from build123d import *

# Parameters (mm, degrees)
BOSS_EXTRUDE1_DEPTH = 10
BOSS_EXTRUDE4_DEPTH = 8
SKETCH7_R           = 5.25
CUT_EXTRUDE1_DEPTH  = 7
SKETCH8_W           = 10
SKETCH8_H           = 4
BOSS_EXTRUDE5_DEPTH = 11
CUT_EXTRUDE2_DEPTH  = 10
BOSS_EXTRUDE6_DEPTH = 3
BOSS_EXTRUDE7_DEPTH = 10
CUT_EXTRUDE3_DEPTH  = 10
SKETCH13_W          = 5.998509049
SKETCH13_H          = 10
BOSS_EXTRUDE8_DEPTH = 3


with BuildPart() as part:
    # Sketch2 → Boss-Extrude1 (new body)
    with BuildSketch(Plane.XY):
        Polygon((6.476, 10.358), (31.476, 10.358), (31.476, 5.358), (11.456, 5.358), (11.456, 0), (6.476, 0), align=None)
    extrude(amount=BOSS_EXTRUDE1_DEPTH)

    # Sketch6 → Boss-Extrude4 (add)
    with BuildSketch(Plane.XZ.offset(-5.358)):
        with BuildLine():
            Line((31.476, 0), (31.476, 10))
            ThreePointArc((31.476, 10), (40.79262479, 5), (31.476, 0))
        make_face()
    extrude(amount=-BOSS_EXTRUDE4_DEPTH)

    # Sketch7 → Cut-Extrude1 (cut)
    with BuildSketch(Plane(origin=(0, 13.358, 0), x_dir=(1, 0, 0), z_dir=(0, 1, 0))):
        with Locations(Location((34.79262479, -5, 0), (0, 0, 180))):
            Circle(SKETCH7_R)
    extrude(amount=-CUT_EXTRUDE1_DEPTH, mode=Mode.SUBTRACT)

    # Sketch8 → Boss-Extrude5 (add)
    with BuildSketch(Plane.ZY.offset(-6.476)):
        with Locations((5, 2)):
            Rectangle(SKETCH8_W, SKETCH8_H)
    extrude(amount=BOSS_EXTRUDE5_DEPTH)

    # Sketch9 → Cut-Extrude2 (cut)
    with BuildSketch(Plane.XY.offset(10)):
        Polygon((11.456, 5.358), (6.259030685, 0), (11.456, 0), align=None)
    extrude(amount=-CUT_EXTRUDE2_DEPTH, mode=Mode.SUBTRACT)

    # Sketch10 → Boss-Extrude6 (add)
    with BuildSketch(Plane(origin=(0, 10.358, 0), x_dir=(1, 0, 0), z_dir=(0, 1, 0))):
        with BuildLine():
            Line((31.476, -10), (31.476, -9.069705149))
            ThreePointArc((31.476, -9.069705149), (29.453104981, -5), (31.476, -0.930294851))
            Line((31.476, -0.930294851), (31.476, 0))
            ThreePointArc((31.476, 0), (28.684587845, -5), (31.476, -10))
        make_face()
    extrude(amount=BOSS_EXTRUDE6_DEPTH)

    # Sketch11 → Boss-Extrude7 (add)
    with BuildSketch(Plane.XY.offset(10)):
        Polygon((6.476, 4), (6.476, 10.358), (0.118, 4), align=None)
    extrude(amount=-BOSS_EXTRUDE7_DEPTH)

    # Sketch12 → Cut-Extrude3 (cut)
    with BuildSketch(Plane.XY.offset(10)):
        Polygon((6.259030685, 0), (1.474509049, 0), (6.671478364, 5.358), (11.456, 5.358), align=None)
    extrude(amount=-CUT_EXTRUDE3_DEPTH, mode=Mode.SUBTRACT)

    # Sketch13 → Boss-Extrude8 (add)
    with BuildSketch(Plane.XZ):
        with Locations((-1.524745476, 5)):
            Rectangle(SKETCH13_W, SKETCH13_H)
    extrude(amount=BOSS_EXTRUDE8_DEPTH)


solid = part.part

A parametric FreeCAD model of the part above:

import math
import FreeCAD as App
import Part
import Sketcher

doc = App.newDocument("Part")
params = doc.addObject("Spreadsheet::Sheet", "Params")
for row, (alias, value) in enumerate([
    ("sketch1_width", "25 mm"),
    ("sketch1_height", "5 mm"),
    ("sketch1_width2", "4.98 mm"),
    ("pad1_length", "10 mm"),
    ("sketch2_radius", "6 mm"),
    ("sketch2_height", "10 mm"),
    ("pad2_length", "8 mm"),
    ("sketch3_diameter", "10.5 mm"),
    ("pocket1_length", "7 mm"),
    ("sketch4_width", "4 mm"),
    ("sketch4_height", "10 mm"),
    ("pad3_length", "11 mm"),
    ("pocket2_length", "10 mm"),
    ("pad4_length", "3 mm"),
    ("pad5_length", "10 mm"),
    ("pocket3_length", "10 mm"),
    ("sketch9_height", "10 mm"),
    ("pad6_length", "3 mm"),
], start=1):
    params.set(f"A{row}", alias)
    params.set(f"B{row}", "=" + value)
    params.setAlias(f"B{row}", alias)

body = doc.addObject("PartDesign::Body", "Body")

# Sketch on XY plane
sketch1 = body.newObject("Sketcher::SketchObject", "Sketch")
sketch1.AttachmentSupport = (doc.getObject("XY_Plane"), [""])
sketch1.MapMode = "FlatFace"
sketch1.addGeometry(Part.LineSegment(App.Vector(31.5, 10.4, 0), App.Vector(6.5, 10.4, 0)), False)
sketch1.addGeometry(Part.LineSegment(App.Vector(6.5, 10.4, 0), App.Vector(6.5, 0, 0)), False)
sketch1.addGeometry(Part.LineSegment(App.Vector(6.5, 0, 0), App.Vector(11.5, 0, 0)), False)
sketch1.addGeometry(Part.LineSegment(App.Vector(11.5, 0, 0), App.Vector(11.5, 5.4, 0)), False)
sketch1.addGeometry(Part.LineSegment(App.Vector(11.5, 5.4, 0), App.Vector(31.5, 5.4, 0)), False)
sketch1.addGeometry(Part.LineSegment(App.Vector(31.5, 5.4, 0), App.Vector(31.5, 10.4, 0)), False)
sketch1.addConstraint(Sketcher.Constraint("Coincident", 0, 2, 1, 1))
sketch1.addConstraint(Sketcher.Constraint("Coincident", 1, 2, 2, 1))
sketch1.addConstraint(Sketcher.Constraint("Coincident", 2, 2, 3, 1))
sketch1.addConstraint(Sketcher.Constraint("Coincident", 3, 2, 4, 1))
sketch1.addConstraint(Sketcher.Constraint("Coincident", 4, 2, 5, 1))
sketch1.addConstraint(Sketcher.Constraint("Coincident", 5, 2, 0, 1))
sketch1.addConstraint(Sketcher.Constraint("Horizontal", 0))
sketch1.addConstraint(Sketcher.Constraint("Vertical", 1))
sketch1.addConstraint(Sketcher.Constraint("Horizontal", 2))
sketch1.addConstraint(Sketcher.Constraint("Vertical", 3))
sketch1.addConstraint(Sketcher.Constraint("Horizontal", 4))
sketch1.addConstraint(Sketcher.Constraint("Vertical", 5))
sketch1.addConstraint(Sketcher.Constraint("PointOnObject", 1, 2, -1))
sketch1.addConstraint(Sketcher.Constraint("DistanceX", 0, 2, 0, 1, 25.0))
sketch1.addConstraint(Sketcher.Constraint("DistanceY", 5, 1, 5, 2, 5.0))
sketch1.addConstraint(Sketcher.Constraint("DistanceX", 2, 1, 2, 2, 4.98))
sketch1.addConstraint(Sketcher.Constraint("DistanceY", 1, 2, 1, 1, 10.358))
sketch1.addConstraint(Sketcher.Constraint("DistanceX", -1, 1, 0, 2, 6.476))
sketch1.setExpression("Constraints[13]", "Params.sketch1_width")
sketch1.setExpression("Constraints[14]", "Params.sketch1_height")
sketch1.setExpression("Constraints[15]", "Params.sketch1_width2")
pad1 = body.newObject("PartDesign::Pad", "Pad")
pad1.Profile = sketch1
pad1.setExpression("Length", "Params.pad1_length")

# Sketch on XZ plane
sketch2 = body.newObject("Sketcher::SketchObject", "Sketch001")
sketch2.AttachmentSupport = (doc.getObject("XZ_Plane"), [""])
sketch2.MapMode = "FlatFace"
sketch2.AttachmentOffset = App.Placement(App.Vector(0, 0, -5.358), App.Rotation())
sketch2.addGeometry(Part.LineSegment(App.Vector(31, 10, 0), App.Vector(31, 0, 0)), False)
sketch2.addGeometry(Part.ArcOfCircle(Part.Circle(App.Vector(35, 5, 0), App.Vector(0, 0, 1), 6), math.radians(-124), math.radians(124)), False)
sketch2.addConstraint(Sketcher.Constraint("Coincident", 0, 1, 1, 2))
sketch2.addConstraint(Sketcher.Constraint("Coincident", 1, 1, 0, 2))
sketch2.addConstraint(Sketcher.Constraint("Vertical", 0))
sketch2.addConstraint(Sketcher.Constraint("PointOnObject", 1, 1, -1))
sketch2.addConstraint(Sketcher.Constraint("Radius", 1, 6.0))
sketch2.addConstraint(Sketcher.Constraint("DistanceY", 0, 2, 0, 1, 10.0))
sketch2.addConstraint(Sketcher.Constraint("DistanceX", -1, 1, 0, 1, 31.476))
sketch2.setExpression("Constraints[4]", "Params.sketch2_radius")
sketch2.setExpression("Constraints[5]", "Params.sketch2_height")
pad2 = body.newObject("PartDesign::Pad", "Pad001")
pad2.Profile = sketch2
pad2.setExpression("Length", "Params.pad2_length")
pad2.Reversed = True

# Sketch on XZ plane
sketch3 = body.newObject("Sketcher::SketchObject", "Sketch002")
sketch3.AttachmentSupport = (doc.getObject("XZ_Plane"), [""])
sketch3.MapMode = "FlatFace"
sketch3.AttachmentOffset = App.Placement(App.Vector(0, 0, -13.358), App.Rotation())
sketch3.addGeometry(Part.Circle(App.Vector(35, 5, 0), App.Vector(0, 0, 1), 5), False)
sketch3.addConstraint(Sketcher.Constraint("Diameter", 0, 10.5))
sketch3.addConstraint(Sketcher.Constraint("DistanceY", -1, 1, 0, 3, 5.0))
sketch3.addConstraint(Sketcher.Constraint("DistanceX", -1, 1, 0, 3, 34.792625))
sketch3.setExpression("Constraints[0]", "Params.sketch3_diameter")
pocket1 = body.newObject("PartDesign::Pocket", "Pocket")
pocket1.Profile = sketch3
pocket1.setExpression("Length", "Params.pocket1_length")
pocket1.Reversed = True

# Sketch on YZ plane
sketch4 = body.newObject("Sketcher::SketchObject", "Sketch003")
sketch4.AttachmentSupport = (doc.getObject("YZ_Plane"), [""])
sketch4.MapMode = "FlatFace"
sketch4.AttachmentOffset = App.Placement(App.Vector(0, 0, 6.476), App.Rotation())
sketch4.addGeometry(Part.LineSegment(App.Vector(4, 0, 0), App.Vector(0, 0, 0)), False)
sketch4.addGeometry(Part.LineSegment(App.Vector(0, 0, 0), App.Vector(0, 10, 0)), False)
sketch4.addGeometry(Part.LineSegment(App.Vector(0, 10, 0), App.Vector(4, 10, 0)), False)
sketch4.addGeometry(Part.LineSegment(App.Vector(4, 10, 0), App.Vector(4, 0, 0)), False)
sketch4.addConstraint(Sketcher.Constraint("Coincident", 0, 2, 1, 1))
sketch4.addConstraint(Sketcher.Constraint("Coincident", 1, 2, 2, 1))
sketch4.addConstraint(Sketcher.Constraint("Coincident", 2, 2, 3, 1))
sketch4.addConstraint(Sketcher.Constraint("Coincident", 3, 2, 0, 1))
sketch4.addConstraint(Sketcher.Constraint("Horizontal", 0))
sketch4.addConstraint(Sketcher.Constraint("Vertical", 1))
sketch4.addConstraint(Sketcher.Constraint("Horizontal", 2))
sketch4.addConstraint(Sketcher.Constraint("Vertical", 3))
sketch4.addConstraint(Sketcher.Constraint("Coincident", 0, 2, -1, 1))
sketch4.addConstraint(Sketcher.Constraint("DistanceX", 0, 2, 0, 1, 4.0))
sketch4.addConstraint(Sketcher.Constraint("DistanceY", 1, 1, 1, 2, 10.0))
sketch4.setExpression("Constraints[9]", "Params.sketch4_width")
sketch4.setExpression("Constraints[10]", "Params.sketch4_height")
pad3 = body.newObject("PartDesign::Pad", "Pad002")
pad3.Profile = sketch4
pad3.setExpression("Length", "Params.pad3_length")
pad3.Reversed = True

# Sketch on XY plane
sketch5 = body.newObject("Sketcher::SketchObject", "Sketch004")
sketch5.AttachmentSupport = (doc.getObject("XY_Plane"), [""])
sketch5.MapMode = "FlatFace"
sketch5.AttachmentOffset = App.Placement(App.Vector(0, 0, 10), App.Rotation())
sketch5.addGeometry(Part.LineSegment(App.Vector(11, 5, 0), App.Vector(6, 0, 0)), False)
sketch5.addGeometry(Part.LineSegment(App.Vector(6, 0, 0), App.Vector(11, 0, 0)), False)
sketch5.addGeometry(Part.LineSegment(App.Vector(11, 0, 0), App.Vector(11, 5, 0)), False)
sketch5.addConstraint(Sketcher.Constraint("Coincident", 0, 2, 1, 1))
sketch5.addConstraint(Sketcher.Constraint("Coincident", 1, 2, 2, 1))
sketch5.addConstraint(Sketcher.Constraint("Coincident", 2, 2, 0, 1))
sketch5.addConstraint(Sketcher.Constraint("Horizontal", 1))
sketch5.addConstraint(Sketcher.Constraint("Vertical", 2))
sketch5.addConstraint(Sketcher.Constraint("PointOnObject", 0, 2, -1))
sketch5.addConstraint(Sketcher.Constraint("DistanceY", 2, 1, 2, 2, 5.358))
sketch5.addConstraint(Sketcher.Constraint("DistanceX", -1, 1, 1, 2, 11.456))
sketch5.addConstraint(Sketcher.Constraint("DistanceX", 1, 1, 1, 2, 5.196969))
pocket2 = body.newObject("PartDesign::Pocket", "Pocket001")
pocket2.Profile = sketch5
pocket2.setExpression("Length", "Params.pocket2_length")

# Sketch on XZ plane
sketch6 = body.newObject("Sketcher::SketchObject", "Sketch005")
sketch6.AttachmentSupport = (doc.getObject("XZ_Plane"), [""])
sketch6.MapMode = "FlatFace"
sketch6.AttachmentOffset = App.Placement(App.Vector(0, 0, -10.358), App.Rotation())
sketch6.addGeometry(Part.LineSegment(App.Vector(31.5, 10, 0), App.Vector(31.5, 9.1, 0)), False)
sketch6.addGeometry(Part.ArcOfCircle(Part.Circle(App.Vector(34.6, 5, 0), App.Vector(0, 0, 1), 5.1), math.radians(127), math.radians(233)), False)
sketch6.addGeometry(Part.LineSegment(App.Vector(31.5, 0.9, 0), App.Vector(31.5, 0, 0)), False)
sketch6.addGeometry(Part.ArcOfCircle(Part.Circle(App.Vector(34.6, 5, 0), App.Vector(0, 0, 1), 5.9), math.radians(122), math.radians(238)), False)
sketch6.addConstraint(Sketcher.Constraint("Coincident", 0, 2, 1, 1))
sketch6.addConstraint(Sketcher.Constraint("Coincident", 1, 2, 2, 1))
sketch6.addConstraint(Sketcher.Constraint("Coincident", 2, 2, 3, 2))
sketch6.addConstraint(Sketcher.Constraint("Coincident", 3, 1, 0, 1))
sketch6.addConstraint(Sketcher.Constraint("Vertical", 0))
sketch6.addConstraint(Sketcher.Constraint("Vertical", 2))
sketch6.addConstraint(Sketcher.Constraint("Coincident", 3, 3, 1, 3))
sketch6.addConstraint(Sketcher.Constraint("PointOnObject", 2, 2, -1))
sketch6.addConstraint(Sketcher.Constraint("Vertical", 0, 2, 1, 2))
sketch6.addConstraint(Sketcher.Constraint("DistanceY", -1, 1, 1, 3, 5.0))
sketch6.addConstraint(Sketcher.Constraint("Radius", 1, 5.105209))
sketch6.addConstraint(Sketcher.Constraint("DistanceX", -1, 1, 0, 2, 31.476))
sketch6.addConstraint(Sketcher.Constraint("Radius", 3, 5.873726))
pad4 = body.newObject("PartDesign::Pad", "Pad003")
pad4.Profile = sketch6
pad4.setExpression("Length", "Params.pad4_length")
pad4.Reversed = True

# Sketch on XY plane
sketch7 = body.newObject("Sketcher::SketchObject", "Sketch006")
sketch7.AttachmentSupport = (doc.getObject("XY_Plane"), [""])
sketch7.MapMode = "FlatFace"
sketch7.AttachmentOffset = App.Placement(App.Vector(0, 0, 10), App.Rotation())
sketch7.addGeometry(Part.LineSegment(App.Vector(6, 4, 0), App.Vector(6, 10, 0)), False)
sketch7.addGeometry(Part.LineSegment(App.Vector(6, 10, 0), App.Vector(0, 4, 0)), False)
sketch7.addGeometry(Part.LineSegment(App.Vector(0, 4, 0), App.Vector(6, 4, 0)), False)
sketch7.addConstraint(Sketcher.Constraint("Coincident", 0, 2, 1, 1))
sketch7.addConstraint(Sketcher.Constraint("Coincident", 1, 2, 2, 1))
sketch7.addConstraint(Sketcher.Constraint("Coincident", 2, 2, 0, 1))
sketch7.addConstraint(Sketcher.Constraint("Vertical", 0))
sketch7.addConstraint(Sketcher.Constraint("Horizontal", 2))
sketch7.addConstraint(Sketcher.Constraint("Equal", 2, 0))
sketch7.addConstraint(Sketcher.Constraint("DistanceY", -1, 1, 1, 2, 4.0))
sketch7.addConstraint(Sketcher.Constraint("DistanceX", 2, 1, 2, 2, 6.358))
sketch7.addConstraint(Sketcher.Constraint("DistanceX", -1, 1, 0, 2, 6.476))
pad5 = body.newObject("PartDesign::Pad", "Pad004")
pad5.Profile = sketch7
pad5.setExpression("Length", "Params.pad5_length")
pad5.Reversed = True

# Sketch on XY plane
sketch8 = body.newObject("Sketcher::SketchObject", "Sketch007")
sketch8.AttachmentSupport = (doc.getObject("XY_Plane"), [""])
sketch8.MapMode = "FlatFace"
sketch8.AttachmentOffset = App.Placement(App.Vector(0, 0, 10), App.Rotation())
sketch8.addGeometry(Part.LineSegment(App.Vector(1.5, 0, 0), App.Vector(6.3, 0, 0)), False)
sketch8.addGeometry(Part.LineSegment(App.Vector(6.3, 0, 0), App.Vector(11.5, 5.4, 0)), False)
sketch8.addGeometry(Part.LineSegment(App.Vector(11.5, 5.4, 0), App.Vector(6.7, 5.4, 0)), False)
sketch8.addGeometry(Part.LineSegment(App.Vector(6.7, 5.4, 0), App.Vector(1.5, 0, 0)), False)
sketch8.addConstraint(Sketcher.Constraint("Coincident", 0, 2, 1, 1))
sketch8.addConstraint(Sketcher.Constraint("Coincident", 1, 2, 2, 1))
sketch8.addConstraint(Sketcher.Constraint("Coincident", 2, 2, 3, 1))
sketch8.addConstraint(Sketcher.Constraint("Coincident", 3, 2, 0, 1))
sketch8.addConstraint(Sketcher.Constraint("Horizontal", 0))
sketch8.addConstraint(Sketcher.Constraint("Horizontal", 2))
sketch8.addConstraint(Sketcher.Constraint("PointOnObject", 0, 2, -1))
sketch8.addConstraint(Sketcher.Constraint("Parallel", 1, 3))
sketch8.addConstraint(Sketcher.Constraint("DistanceX", -1, 1, 1, 2, 11.456))
sketch8.addConstraint(Sketcher.Constraint("DistanceY", -1, 1, 1, 2, 5.358))
sketch8.addConstraint(Sketcher.Constraint("DistanceX", 0, 1, 0, 2, 4.784522))
sketch8.addConstraint(Sketcher.Constraint("Distance", 1, 7.464359))
pocket3 = body.newObject("PartDesign::Pocket", "Pocket002")
pocket3.Profile = sketch8
pocket3.setExpression("Length", "Params.pocket3_length")

# Sketch on XZ plane
sketch9 = body.newObject("Sketcher::SketchObject", "Sketch008")
sketch9.AttachmentSupport = (doc.getObject("XZ_Plane"), [""])
sketch9.MapMode = "FlatFace"
sketch9.addGeometry(Part.LineSegment(App.Vector(-5, 10, 0), App.Vector(-5, 0, 0)), False)
sketch9.addGeometry(Part.LineSegment(App.Vector(-5, 0, 0), App.Vector(1, 0, 0)), False)
sketch9.addGeometry(Part.LineSegment(App.Vector(1, 0, 0), App.Vector(1, 10, 0)), False)
sketch9.addGeometry(Part.LineSegment(App.Vector(1, 10, 0), App.Vector(-5, 10, 0)), False)
sketch9.addConstraint(Sketcher.Constraint("Coincident", 0, 2, 1, 1))
sketch9.addConstraint(Sketcher.Constraint("Coincident", 1, 2, 2, 1))
sketch9.addConstraint(Sketcher.Constraint("Coincident", 2, 2, 3, 1))
sketch9.addConstraint(Sketcher.Constraint("Coincident", 3, 2, 0, 1))
sketch9.addConstraint(Sketcher.Constraint("Vertical", 0))
sketch9.addConstraint(Sketcher.Constraint("Horizontal", 1))
sketch9.addConstraint(Sketcher.Constraint("Vertical", 2))
sketch9.addConstraint(Sketcher.Constraint("Horizontal", 3))
sketch9.addConstraint(Sketcher.Constraint("PointOnObject", 0, 2, -1))
sketch9.addConstraint(Sketcher.Constraint("DistanceY", 0, 2, 0, 1, 10.0))
sketch9.addConstraint(Sketcher.Constraint("DistanceX", 0, 2, -1, 1, 4.524))
sketch9.addConstraint(Sketcher.Constraint("DistanceX", 1, 1, 1, 2, 5.998509))
sketch9.setExpression("Constraints[9]", "Params.sketch9_height")
pad6 = body.newObject("PartDesign::Pad", "Pad005")
pad6.Profile = sketch9
pad6.setExpression("Length", "Params.pad6_length")

doc.recompute()
